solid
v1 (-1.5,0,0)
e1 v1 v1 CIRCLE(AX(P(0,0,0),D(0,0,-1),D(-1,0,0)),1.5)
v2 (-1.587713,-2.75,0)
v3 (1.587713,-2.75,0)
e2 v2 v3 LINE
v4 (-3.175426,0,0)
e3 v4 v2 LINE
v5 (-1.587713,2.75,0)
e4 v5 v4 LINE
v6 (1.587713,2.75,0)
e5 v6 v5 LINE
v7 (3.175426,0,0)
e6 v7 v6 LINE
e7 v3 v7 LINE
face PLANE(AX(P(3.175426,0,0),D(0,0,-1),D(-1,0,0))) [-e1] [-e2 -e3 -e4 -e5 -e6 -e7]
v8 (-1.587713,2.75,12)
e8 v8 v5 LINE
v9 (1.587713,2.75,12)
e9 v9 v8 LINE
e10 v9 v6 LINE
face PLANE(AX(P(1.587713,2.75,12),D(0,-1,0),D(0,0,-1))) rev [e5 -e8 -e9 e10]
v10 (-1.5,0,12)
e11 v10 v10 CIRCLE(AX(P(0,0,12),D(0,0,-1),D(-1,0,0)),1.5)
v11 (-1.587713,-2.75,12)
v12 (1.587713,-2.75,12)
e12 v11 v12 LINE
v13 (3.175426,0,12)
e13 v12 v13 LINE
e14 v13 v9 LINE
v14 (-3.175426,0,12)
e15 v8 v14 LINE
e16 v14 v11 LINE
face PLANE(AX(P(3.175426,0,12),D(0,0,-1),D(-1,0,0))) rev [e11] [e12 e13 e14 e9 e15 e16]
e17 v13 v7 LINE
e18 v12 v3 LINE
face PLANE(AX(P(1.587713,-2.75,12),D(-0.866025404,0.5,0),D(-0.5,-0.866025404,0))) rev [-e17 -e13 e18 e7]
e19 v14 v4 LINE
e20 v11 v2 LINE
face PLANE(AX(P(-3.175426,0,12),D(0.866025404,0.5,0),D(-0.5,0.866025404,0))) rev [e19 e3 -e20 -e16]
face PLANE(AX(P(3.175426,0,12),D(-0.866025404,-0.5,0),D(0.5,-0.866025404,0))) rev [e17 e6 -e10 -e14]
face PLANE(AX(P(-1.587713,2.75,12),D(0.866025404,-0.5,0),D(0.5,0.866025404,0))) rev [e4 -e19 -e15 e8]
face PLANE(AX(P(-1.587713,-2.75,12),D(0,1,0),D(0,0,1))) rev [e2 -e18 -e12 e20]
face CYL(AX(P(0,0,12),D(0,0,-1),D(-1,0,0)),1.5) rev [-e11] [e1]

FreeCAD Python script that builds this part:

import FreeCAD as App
import Part
import Sketcher
Q = App.Units.Quantity


def add_polygon(sketch, points):
    """Adds a closed chain of lines whose ends are joined by coincident constraints."""
    first, n = sketch.GeometryCount, len(points)
    for a, b in zip(points, points[1:] + points[:1]):
        sketch.addGeometry(Part.LineSegment(App.Vector(*a, 0), App.Vector(*b, 0)), False)
    for i in range(n):
        sketch.addConstraint(Sketcher.Constraint("Coincident", first + i, 2, first + (i + 1) % n, 1))

doc = App.newDocument("Part")
body = doc.addObject("PartDesign::Body", "Body")

sketch1 = body.newObject("Sketcher::SketchObject", "Sketch")
sketch1.AttachmentSupport = (doc.getObject("XY_Plane"), [""])
sketch1.MapMode = "FlatFace"
add_polygon(sketch1, [(1.6, 2.8), (-1.6, 2.8), (-3.2, 0), (-1.6, -2.8), (1.6, -2.8), (3.2, 0)])
sketch1.addConstraint(Sketcher.Constraint("Horizontal", 0))
sketch1.addConstraint(Sketcher.Constraint("Horizontal", 3))
sketch1.addConstraint(Sketcher.Constraint("Symmetric", 0, 2, 3, 2, -1, 1))
sketch1.addConstraint(Sketcher.Constraint("Symmetric", 1, 2, 4, 2, -1, 1))
sketch1.addConstraint(Sketcher.Constraint("PointOnObject", 1, 2, -1))
sketch1.addConstraint(Sketcher.Constraint("Parallel", 2, 5))
sketch1.addConstraint(Sketcher.Constraint("Vertical", 0, 2, 2, 2))
sketch1.addConstraint(Sketcher.Constraint("Angle", 1, Q("-120 deg")))
sketch1.addConstraint(Sketcher.Constraint("DistanceY", 2, 2, 0, 2, 5.5))
sketch1.addConstraint(Sketcher.Constraint("DistanceX", 0, 2, 0, 1, 3.175426))
pad1 = body.newObject("PartDesign::Pad", "Pad")
pad1.Profile = sketch1
pad1.Length = 12

sketch2 = body.newObject("Sketcher::SketchObject", "Sketch001")
sketch2.AttachmentSupport = (doc.getObject("XY_Plane"), [""])
sketch2.MapMode = "FlatFace"
sketch2.addGeometry(Part.Circle(App.Vector(0, 0, 0), App.Vector(0, 0, 1), 1.5), False)
sketch2.addConstraint(Sketcher.Constraint("Coincident", 0, 3, -1, 1))
sketch2.addConstraint(Sketcher.Constraint("Diameter", 0, 3.0))
pocket1 = body.newObject("PartDesign::Pocket", "Pocket")
pocket1.Profile = sketch2
pocket1.Type = "ThroughAll"
pocket1.Reversed = True

doc.recompute()
